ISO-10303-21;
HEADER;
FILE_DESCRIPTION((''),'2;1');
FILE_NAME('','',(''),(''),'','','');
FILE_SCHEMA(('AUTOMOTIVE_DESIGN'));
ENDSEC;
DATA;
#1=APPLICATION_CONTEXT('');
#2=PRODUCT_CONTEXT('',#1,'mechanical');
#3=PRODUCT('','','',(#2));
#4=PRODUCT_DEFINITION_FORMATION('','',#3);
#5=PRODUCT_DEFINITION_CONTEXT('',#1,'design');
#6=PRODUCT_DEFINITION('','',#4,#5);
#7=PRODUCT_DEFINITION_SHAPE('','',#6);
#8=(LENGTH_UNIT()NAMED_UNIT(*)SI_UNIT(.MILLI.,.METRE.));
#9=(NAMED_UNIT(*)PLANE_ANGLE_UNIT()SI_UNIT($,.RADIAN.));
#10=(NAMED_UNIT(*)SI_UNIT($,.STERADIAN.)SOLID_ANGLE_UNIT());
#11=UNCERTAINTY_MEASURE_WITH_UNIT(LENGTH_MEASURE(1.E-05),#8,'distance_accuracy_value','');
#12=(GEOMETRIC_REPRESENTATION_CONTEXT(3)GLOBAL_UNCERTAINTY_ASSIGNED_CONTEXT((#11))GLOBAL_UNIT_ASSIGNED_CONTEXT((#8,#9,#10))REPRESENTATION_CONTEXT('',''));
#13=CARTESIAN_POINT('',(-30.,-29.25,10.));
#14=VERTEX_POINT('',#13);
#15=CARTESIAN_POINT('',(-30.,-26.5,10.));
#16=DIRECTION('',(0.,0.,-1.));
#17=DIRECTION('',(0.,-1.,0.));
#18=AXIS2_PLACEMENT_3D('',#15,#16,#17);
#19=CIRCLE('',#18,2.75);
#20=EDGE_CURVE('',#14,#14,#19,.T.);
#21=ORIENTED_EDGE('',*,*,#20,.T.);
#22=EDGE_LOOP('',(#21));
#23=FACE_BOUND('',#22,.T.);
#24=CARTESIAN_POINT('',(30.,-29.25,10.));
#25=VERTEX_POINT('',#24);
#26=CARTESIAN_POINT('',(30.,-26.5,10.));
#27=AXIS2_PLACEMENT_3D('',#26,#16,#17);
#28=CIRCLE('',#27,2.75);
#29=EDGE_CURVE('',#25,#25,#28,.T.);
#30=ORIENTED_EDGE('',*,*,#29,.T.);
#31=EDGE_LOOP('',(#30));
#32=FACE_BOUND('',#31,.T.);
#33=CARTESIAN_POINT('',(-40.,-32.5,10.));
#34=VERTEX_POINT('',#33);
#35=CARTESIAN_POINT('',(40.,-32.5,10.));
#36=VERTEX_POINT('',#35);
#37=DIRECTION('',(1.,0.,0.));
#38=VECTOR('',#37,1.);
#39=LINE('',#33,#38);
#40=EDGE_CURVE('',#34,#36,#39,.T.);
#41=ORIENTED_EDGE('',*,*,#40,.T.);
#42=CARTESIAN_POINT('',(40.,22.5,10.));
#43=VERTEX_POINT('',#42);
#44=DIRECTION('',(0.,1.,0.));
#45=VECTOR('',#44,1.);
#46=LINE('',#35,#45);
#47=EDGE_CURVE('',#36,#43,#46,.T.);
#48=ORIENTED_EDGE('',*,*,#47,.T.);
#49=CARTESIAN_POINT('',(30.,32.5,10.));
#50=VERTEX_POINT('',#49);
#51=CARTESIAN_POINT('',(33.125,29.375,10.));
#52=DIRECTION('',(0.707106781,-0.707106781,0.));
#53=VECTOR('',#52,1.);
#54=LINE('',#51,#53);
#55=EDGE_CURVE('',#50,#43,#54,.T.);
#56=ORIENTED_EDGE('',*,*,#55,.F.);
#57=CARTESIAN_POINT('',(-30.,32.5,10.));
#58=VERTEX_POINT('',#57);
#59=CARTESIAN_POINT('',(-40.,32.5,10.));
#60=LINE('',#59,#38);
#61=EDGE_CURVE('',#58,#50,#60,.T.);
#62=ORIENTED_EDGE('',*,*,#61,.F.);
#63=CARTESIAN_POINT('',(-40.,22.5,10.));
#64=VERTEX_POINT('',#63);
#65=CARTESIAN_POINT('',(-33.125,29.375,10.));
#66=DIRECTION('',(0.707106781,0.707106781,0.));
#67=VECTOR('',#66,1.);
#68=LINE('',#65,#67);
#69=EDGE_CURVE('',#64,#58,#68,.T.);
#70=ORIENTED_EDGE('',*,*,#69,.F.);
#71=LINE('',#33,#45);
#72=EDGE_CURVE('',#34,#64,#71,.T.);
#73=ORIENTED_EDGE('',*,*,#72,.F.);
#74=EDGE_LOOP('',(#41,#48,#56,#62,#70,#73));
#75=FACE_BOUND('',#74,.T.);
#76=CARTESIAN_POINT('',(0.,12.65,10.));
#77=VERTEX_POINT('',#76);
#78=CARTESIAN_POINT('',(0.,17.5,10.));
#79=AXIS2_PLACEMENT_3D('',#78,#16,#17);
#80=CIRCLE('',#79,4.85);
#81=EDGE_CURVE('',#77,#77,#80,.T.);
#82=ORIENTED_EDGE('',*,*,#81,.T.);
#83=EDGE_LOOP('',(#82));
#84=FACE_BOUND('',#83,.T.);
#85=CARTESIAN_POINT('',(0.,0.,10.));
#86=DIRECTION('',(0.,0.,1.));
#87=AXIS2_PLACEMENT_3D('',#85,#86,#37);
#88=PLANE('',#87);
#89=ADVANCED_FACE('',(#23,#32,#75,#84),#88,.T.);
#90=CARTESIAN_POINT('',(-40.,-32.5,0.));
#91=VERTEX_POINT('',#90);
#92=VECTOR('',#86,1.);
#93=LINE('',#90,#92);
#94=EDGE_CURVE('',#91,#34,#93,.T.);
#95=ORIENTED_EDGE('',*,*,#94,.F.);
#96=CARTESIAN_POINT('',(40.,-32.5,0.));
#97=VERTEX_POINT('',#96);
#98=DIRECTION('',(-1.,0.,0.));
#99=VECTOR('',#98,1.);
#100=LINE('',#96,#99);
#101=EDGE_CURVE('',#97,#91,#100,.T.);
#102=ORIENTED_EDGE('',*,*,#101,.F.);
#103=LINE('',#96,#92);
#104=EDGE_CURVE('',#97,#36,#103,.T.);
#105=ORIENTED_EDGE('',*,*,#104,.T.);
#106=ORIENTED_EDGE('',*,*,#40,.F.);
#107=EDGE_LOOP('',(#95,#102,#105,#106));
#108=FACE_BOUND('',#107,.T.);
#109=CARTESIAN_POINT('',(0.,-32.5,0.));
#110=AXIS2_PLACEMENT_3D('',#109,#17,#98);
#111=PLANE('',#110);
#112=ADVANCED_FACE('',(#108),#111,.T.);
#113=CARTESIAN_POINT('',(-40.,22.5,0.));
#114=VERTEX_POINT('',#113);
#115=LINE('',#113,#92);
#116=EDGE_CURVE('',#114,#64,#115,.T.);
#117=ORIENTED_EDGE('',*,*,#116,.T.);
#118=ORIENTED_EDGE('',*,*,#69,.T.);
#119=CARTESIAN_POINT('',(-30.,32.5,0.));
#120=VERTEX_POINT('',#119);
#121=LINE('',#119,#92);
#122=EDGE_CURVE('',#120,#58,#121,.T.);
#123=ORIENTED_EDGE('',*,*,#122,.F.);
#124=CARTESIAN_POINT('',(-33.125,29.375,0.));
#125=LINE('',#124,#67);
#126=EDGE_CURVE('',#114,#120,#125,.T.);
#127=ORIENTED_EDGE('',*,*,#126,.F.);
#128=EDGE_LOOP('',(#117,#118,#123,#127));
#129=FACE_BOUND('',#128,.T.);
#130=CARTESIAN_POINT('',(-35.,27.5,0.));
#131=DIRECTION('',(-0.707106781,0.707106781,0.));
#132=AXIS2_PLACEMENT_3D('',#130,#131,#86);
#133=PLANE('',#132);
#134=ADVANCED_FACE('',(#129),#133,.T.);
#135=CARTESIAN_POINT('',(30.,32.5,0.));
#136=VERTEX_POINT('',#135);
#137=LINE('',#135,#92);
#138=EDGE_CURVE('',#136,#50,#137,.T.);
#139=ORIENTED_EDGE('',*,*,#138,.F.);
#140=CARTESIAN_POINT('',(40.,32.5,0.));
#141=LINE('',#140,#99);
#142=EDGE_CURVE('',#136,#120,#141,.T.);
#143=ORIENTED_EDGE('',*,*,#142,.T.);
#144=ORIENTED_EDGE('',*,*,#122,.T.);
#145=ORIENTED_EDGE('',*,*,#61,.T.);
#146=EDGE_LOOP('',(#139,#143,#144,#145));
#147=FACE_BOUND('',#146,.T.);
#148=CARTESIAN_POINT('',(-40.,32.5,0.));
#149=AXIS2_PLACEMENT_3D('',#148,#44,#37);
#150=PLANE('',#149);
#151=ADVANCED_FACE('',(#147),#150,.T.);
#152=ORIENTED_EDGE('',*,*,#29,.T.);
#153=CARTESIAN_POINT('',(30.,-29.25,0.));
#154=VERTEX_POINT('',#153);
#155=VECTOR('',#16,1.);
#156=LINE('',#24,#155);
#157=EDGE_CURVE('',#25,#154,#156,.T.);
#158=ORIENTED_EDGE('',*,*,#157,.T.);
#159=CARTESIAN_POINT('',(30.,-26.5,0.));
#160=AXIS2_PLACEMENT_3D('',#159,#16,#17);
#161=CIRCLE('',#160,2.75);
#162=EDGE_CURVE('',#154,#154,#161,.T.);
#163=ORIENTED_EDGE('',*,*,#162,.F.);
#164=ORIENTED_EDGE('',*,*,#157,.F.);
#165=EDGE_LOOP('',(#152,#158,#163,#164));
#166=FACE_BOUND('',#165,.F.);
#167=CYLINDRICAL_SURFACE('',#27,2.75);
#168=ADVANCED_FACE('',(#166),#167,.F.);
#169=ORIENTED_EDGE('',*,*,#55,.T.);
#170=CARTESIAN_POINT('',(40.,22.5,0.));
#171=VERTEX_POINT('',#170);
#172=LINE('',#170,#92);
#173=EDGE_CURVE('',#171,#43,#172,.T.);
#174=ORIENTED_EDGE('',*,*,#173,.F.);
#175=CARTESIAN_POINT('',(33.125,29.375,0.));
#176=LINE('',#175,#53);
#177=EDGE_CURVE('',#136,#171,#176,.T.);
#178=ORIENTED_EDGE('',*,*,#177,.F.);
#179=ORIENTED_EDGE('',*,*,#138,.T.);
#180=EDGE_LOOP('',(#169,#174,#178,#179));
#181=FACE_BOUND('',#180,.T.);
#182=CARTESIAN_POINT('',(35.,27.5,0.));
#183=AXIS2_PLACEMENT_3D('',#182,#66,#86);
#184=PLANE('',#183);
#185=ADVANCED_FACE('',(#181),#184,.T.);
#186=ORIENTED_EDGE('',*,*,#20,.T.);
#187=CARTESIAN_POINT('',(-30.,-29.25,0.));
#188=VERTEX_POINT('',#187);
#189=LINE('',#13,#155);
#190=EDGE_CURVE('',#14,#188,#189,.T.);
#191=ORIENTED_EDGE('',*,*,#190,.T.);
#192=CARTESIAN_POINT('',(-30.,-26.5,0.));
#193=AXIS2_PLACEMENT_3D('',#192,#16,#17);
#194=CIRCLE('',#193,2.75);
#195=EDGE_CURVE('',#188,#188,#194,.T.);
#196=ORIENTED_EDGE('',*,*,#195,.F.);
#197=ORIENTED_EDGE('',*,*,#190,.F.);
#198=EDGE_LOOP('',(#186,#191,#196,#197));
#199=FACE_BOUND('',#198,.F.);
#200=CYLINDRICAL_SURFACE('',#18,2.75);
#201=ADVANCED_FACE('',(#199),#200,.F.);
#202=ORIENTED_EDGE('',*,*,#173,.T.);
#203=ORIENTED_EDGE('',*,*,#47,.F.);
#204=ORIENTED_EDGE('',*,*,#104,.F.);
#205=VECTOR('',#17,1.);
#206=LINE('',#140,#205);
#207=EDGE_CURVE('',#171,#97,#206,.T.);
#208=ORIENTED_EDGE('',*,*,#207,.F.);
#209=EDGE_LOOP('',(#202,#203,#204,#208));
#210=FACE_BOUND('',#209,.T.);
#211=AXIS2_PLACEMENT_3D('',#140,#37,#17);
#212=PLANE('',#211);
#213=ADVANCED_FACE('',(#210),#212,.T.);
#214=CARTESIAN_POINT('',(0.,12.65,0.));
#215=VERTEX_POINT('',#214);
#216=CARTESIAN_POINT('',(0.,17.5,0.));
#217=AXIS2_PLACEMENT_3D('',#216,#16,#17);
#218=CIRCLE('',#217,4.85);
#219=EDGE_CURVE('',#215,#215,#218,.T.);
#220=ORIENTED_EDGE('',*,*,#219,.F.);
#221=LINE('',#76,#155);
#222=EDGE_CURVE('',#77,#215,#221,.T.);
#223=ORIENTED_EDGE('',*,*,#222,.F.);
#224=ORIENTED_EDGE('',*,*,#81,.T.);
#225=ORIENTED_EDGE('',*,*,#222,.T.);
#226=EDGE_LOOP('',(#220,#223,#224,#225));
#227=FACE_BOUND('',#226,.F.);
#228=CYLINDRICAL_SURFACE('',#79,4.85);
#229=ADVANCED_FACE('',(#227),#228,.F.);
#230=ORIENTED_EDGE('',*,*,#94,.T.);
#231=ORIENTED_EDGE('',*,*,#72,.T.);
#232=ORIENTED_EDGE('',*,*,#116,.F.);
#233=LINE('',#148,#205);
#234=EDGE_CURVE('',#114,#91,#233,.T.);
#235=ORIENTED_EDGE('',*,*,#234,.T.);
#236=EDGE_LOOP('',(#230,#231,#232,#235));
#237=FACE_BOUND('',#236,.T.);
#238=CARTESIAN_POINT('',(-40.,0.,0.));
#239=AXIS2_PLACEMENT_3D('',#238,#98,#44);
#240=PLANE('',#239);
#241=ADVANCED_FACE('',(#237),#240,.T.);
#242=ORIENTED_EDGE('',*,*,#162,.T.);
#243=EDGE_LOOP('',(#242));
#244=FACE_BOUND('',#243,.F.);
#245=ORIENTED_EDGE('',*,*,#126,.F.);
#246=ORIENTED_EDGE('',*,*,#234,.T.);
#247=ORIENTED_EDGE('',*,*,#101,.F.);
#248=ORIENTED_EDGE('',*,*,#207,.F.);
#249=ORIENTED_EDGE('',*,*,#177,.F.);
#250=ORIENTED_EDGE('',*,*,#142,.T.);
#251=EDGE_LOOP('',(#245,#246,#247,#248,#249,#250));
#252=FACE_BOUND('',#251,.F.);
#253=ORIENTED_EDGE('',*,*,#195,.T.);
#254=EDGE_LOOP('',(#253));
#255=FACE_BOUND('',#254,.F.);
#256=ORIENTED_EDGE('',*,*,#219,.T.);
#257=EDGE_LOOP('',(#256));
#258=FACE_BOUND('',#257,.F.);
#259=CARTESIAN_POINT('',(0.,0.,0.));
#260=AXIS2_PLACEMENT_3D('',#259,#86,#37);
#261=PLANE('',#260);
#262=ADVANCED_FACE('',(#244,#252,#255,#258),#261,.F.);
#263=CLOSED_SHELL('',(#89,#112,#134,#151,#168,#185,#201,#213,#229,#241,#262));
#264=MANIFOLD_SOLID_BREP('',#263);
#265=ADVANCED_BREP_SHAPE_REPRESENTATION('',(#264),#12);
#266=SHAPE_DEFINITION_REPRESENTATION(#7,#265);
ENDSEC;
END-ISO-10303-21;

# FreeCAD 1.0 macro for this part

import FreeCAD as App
import Part
import Sketcher


def edges_at(feature, points):
    """Names of the edges that pass closest to the given points."""
    edges = feature.Shape.Edges
    near = lambda p: min(range(len(edges)), key=lambda i: edges[i].distToShape(Part.Vertex(*p))[0])
    return sorted({f"Edge{near(p) + 1}" for p in points})

doc = App.newDocument("Part")
body = doc.addObject("PartDesign::Body", "Body")

sketch1 = body.newObject("Sketcher::SketchObject", "Sketch")
sketch1.AttachmentSupport = (doc.getObject("XY_Plane"), [""])
sketch1.MapMode = "FlatFace"
sketch1.addGeometry([
    Part.LineSegment(App.Vector(-40, 32, 0), App.Vector(-40, -32, 0)),
    Part.LineSegment(App.Vector(-40, -32, 0), App.Vector(40, -32, 0)),
    Part.LineSegment(App.Vector(40, -32, 0), App.Vector(40, 32, 0)),
    Part.LineSegment(App.Vector(40, 32, 0), App.Vector(-40, 32, 0)),
], False)
sketch1.addConstraint([
    Sketcher.Constraint("Coincident", 0, 2, 1, 1),
    Sketcher.Constraint("Coincident", 1, 2, 2, 1),
    Sketcher.Constraint("Coincident", 2, 2, 3, 1),
    Sketcher.Constraint("Coincident", 3, 2, 0, 1),
    Sketcher.Constraint("Vertical", 0),
    Sketcher.Constraint("Horizontal", 1),
    Sketcher.Constraint("Vertical", 2),
    Sketcher.Constraint("Horizontal", 3),
    Sketcher.Constraint("Symmetric", 0, 2, 2, 2, -1, 1),
    Sketcher.Constraint("DistanceX", 1, 1, 1, 2, 80.0),
    Sketcher.Constraint("DistanceY", 0, 2, 0, 1, 65.0),
])
pad1 = body.newObject("PartDesign::Pad", "Pad")
pad1.Profile = sketch1
pad1.Length = 10

sketch2 = body.newObject("Sketcher::SketchObject", "Sketch001")
sketch2.AttachmentSupport = (doc.getObject("XY_Plane"), [""])
sketch2.MapMode = "FlatFace"
sketch2.AttachmentOffset = App.Placement(App.Vector(0, 0, 10), App.Rotation())
sketch2.addGeometry(Part.Circle(App.Vector(0, 17.5, 0), App.Vector(0, 0, 1), 4.8), False)
sketch2.addConstraint([
    Sketcher.Constraint("PointOnObject", 0, 3, -2),
    Sketcher.Constraint("Diameter", 0, 9.7),
    Sketcher.Constraint("DistanceY", -1, 1, 0, 3, 17.5),
])
doc.recompute()
hole = body.newObject("PartDesign::Hole", "Hole")
hole.Profile = sketch2
hole.ThreadType = "None"
hole.Diameter = 9.7
hole.DepthType = "ThroughAll"

sketch3 = body.newObject("Sketcher::SketchObject", "Sketch002")
sketch3.AttachmentSupport = (doc.getObject("XY_Plane"), [""])
sketch3.MapMode = "FlatFace"
sketch3.AttachmentOffset = App.Placement(App.Vector(0, 0, 10), App.Rotation())
sketch3.addGeometry([
    Part.Circle(App.Vector(-30, -26.5, 0), App.Vector(0, 0, 1), 2.8),
    Part.Circle(App.Vector(30, -26.5, 0), App.Vector(0, 0, 1), 2.8),
], False)
sketch3.addConstraint([
    Sketcher.Constraint("Equal", 0, 1),
    Sketcher.Constraint("Symmetric", 0, 3, 1, 3, -2),
    Sketcher.Constraint("Diameter", 0, 5.5),
    Sketcher.Constraint("DistanceX", 0, 3, -1, 1, 30.0),
    Sketcher.Constraint("DistanceY", 0, 3, -1, 1, 26.5),
])
doc.recompute()
hole2 = body.newObject("PartDesign::Hole", "Hole001")
hole2.Profile = sketch3
hole2.ThreadType = "None"
hole2.Diameter = 5.5
hole2.DepthType = "ThroughAll"
doc.recompute()

chamfer = body.newObject("PartDesign::Chamfer", "Chamfer")
chamfer.Base = (hole2, edges_at(hole2, [(-40, 32.5, 5), (40, 32.5, 5)]))
chamfer.Size = 10

doc.recompute()
